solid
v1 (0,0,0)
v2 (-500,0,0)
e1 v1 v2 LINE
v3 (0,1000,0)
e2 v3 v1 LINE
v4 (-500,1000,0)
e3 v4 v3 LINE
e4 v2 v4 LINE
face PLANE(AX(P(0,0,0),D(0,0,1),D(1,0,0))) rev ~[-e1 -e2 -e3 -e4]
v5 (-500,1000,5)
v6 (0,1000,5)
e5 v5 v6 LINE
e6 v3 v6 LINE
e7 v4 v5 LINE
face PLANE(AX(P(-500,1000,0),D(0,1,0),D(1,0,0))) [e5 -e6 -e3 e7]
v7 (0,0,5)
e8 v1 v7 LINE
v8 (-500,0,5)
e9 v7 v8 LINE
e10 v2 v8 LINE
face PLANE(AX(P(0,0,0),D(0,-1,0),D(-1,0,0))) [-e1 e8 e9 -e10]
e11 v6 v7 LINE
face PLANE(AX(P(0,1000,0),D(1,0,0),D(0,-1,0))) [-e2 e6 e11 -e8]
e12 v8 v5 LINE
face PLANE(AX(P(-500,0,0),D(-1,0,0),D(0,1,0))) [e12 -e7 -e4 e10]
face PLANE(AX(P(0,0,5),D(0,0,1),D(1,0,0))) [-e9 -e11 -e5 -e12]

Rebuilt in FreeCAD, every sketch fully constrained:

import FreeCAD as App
import Part
import Sketcher
from FreeCAD import Vector
Q = App.Units.Quantity


def add_polygon(sketch, points):
    """Adds a closed chain of lines whose ends are joined by coincident constraints."""
    first, n = sketch.GeometryCount, len(points)
    for a, b in zip(points, points[1:] + points[:1]):
        sketch.addGeometry(Part.LineSegment(App.Vector(*a, 0), App.Vector(*b, 0)), False)
    for i in range(n):
        sketch.addConstraint(Sketcher.Constraint("Coincident", first + i, 2, first + (i + 1) % n, 1))

doc = App.newDocument("Part")
body = doc.addObject("PartDesign::Body", "Body")

sketch1 = body.newObject("Sketcher::SketchObject", "Sketch")
sketch1.AttachmentSupport = (doc.getObject("XY_Plane"), [""])
sketch1.MapMode = "FlatFace"
add_polygon(sketch1, [(-500, 0), (0, 0), (0, 1000), (-500, 1000)])
sketch1.addConstraint(Sketcher.Constraint("Horizontal", 0))
sketch1.addConstraint(Sketcher.Constraint("Vertical", 1))
sketch1.addConstraint(Sketcher.Constraint("Horizontal", 2))
sketch1.addConstraint(Sketcher.Constraint("Vertical", 3))
sketch1.addConstraint(Sketcher.Constraint("Coincident", 0, 2, -1, 1))
sketch1.addConstraint(Sketcher.Constraint("DistanceX", 0, 1, 0, 2, Q("500 mm")))
sketch1.addConstraint(Sketcher.Constraint("DistanceY", 1, 1, 1, 2, Q("1000 mm")))
pad1 = body.newObject("PartDesign::Pad", "Pad")
pad1.Profile = sketch1
pad1.Length = 5

doc.recompute()
